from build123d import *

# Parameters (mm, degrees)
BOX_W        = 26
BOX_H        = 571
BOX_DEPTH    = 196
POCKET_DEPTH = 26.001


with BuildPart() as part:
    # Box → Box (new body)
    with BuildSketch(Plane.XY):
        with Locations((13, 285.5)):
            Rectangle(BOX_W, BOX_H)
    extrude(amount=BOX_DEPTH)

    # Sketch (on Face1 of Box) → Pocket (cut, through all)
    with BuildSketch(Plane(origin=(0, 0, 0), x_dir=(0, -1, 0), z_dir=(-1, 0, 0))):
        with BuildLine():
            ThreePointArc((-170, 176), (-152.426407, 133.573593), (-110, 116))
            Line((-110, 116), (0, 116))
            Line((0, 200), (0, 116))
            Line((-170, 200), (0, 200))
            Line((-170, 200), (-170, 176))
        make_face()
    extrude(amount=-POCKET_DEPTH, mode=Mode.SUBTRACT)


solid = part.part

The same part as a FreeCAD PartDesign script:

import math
import FreeCAD as App
import Part
import Sketcher
from FreeCAD import Vector


def add_polygon(sketch, points):
    """Adds a closed chain of lines whose ends are joined by coincident constraints."""
    first, n = sketch.GeometryCount, len(points)
    for a, b in zip(points, points[1:] + points[:1]):
        sketch.addGeometry(Part.LineSegment(App.Vector(*a, 0), App.Vector(*b, 0)), False)
    for i in range(n):
        sketch.addConstraint(Sketcher.Constraint("Coincident", first + i, 2, first + (i + 1) % n, 1))

doc = App.newDocument("Part")
body = doc.addObject("PartDesign::Body", "Body")

# Sketch on XY plane
sketch1 = doc.addObject("Sketcher::SketchObject", "Sketch")
body.addObject(sketch1)
sketch1.AttachmentSupport = (doc.XY_Plane, [""])
sketch1.MapMode = "FlatFace"
add_polygon(sketch1, [(0, 571), (0, 0), (26, 0), (26, 571)])  # lines 0-3
sketch1.addConstraint([
    Sketcher.Constraint("Vertical", 0),
    Sketcher.Constraint("Horizontal", 1),
    Sketcher.Constraint("Vertical", 2),
    Sketcher.Constraint("Horizontal", 3),
    Sketcher.Constraint("Coincident", 0, 2, -1, 1),
    Sketcher.Constraint("DistanceX", 1, 1, 1, 2, 26.0),
    Sketcher.Constraint("DistanceY", 0, 2, 0, 1, 571.0),
])
pad1 = doc.addObject("PartDesign::Pad", "Pad")
body.addObject(pad1)
pad1.Profile = sketch1
pad1.Length = 196

# Sketch on YZ plane
sketch2 = doc.addObject("Sketcher::SketchObject", "Sketch001")
body.addObject(sketch2)
sketch2.AttachmentSupport = (doc.YZ_Plane, [""])
sketch2.MapMode = "FlatFace"
sketch2.addGeometry([
    Part.ArcOfCircle(Part.Circle(Vector(110, 176, 0), Vector(0, 0, 1), 60), math.radians(-90), math.radians(0)),  # 0
    Part.LineSegment(Vector(110, 116, 0), Vector(0, 116, 0)),  # 1
    Part.LineSegment(Vector(0, 116, 0), Vector(0, 200, 0)),  # 2
    Part.LineSegment(Vector(0, 200, 0), Vector(170, 200, 0)),  # 3
    Part.LineSegment(Vector(170, 200, 0), Vector(170, 176, 0)),  # 4
], False)
sketch2.addConstraint([
    Sketcher.Constraint("Tangent", 0, 1, 1, 1),
    Sketcher.Constraint("Coincident", 1, 2, 2, 1),
    Sketcher.Constraint("Coincident", 2, 2, 3, 1),
    Sketcher.Constraint("Coincident", 3, 2, 4, 1),
    Sketcher.Constraint("Tangent", 4, 2, 0, 2),
    Sketcher.Constraint("Horizontal", 1),
    Sketcher.Constraint("Vertical", 2),
    Sketcher.Constraint("Horizontal", 3),
    Sketcher.Constraint("Vertical", 4),
    Sketcher.Constraint("PointOnObject", 1, 2, -2),
    Sketcher.Constraint("Radius", 0, 60.0),
    Sketcher.Constraint("DistanceX", 1, 2, 1, 1, 110.0),
    Sketcher.Constraint("DistanceY", 2, 1, 2, 2, 84.0),
    Sketcher.Constraint("DistanceY", -1, 1, 0, 3, 176.0),
])
pocket1 = doc.addObject("PartDesign::Pocket", "Pocket")
body.addObject(pocket1)
pocket1.Profile = sketch2
pocket1.Type = "ThroughAll"
pocket1.Reversed = True

doc.recompute()
